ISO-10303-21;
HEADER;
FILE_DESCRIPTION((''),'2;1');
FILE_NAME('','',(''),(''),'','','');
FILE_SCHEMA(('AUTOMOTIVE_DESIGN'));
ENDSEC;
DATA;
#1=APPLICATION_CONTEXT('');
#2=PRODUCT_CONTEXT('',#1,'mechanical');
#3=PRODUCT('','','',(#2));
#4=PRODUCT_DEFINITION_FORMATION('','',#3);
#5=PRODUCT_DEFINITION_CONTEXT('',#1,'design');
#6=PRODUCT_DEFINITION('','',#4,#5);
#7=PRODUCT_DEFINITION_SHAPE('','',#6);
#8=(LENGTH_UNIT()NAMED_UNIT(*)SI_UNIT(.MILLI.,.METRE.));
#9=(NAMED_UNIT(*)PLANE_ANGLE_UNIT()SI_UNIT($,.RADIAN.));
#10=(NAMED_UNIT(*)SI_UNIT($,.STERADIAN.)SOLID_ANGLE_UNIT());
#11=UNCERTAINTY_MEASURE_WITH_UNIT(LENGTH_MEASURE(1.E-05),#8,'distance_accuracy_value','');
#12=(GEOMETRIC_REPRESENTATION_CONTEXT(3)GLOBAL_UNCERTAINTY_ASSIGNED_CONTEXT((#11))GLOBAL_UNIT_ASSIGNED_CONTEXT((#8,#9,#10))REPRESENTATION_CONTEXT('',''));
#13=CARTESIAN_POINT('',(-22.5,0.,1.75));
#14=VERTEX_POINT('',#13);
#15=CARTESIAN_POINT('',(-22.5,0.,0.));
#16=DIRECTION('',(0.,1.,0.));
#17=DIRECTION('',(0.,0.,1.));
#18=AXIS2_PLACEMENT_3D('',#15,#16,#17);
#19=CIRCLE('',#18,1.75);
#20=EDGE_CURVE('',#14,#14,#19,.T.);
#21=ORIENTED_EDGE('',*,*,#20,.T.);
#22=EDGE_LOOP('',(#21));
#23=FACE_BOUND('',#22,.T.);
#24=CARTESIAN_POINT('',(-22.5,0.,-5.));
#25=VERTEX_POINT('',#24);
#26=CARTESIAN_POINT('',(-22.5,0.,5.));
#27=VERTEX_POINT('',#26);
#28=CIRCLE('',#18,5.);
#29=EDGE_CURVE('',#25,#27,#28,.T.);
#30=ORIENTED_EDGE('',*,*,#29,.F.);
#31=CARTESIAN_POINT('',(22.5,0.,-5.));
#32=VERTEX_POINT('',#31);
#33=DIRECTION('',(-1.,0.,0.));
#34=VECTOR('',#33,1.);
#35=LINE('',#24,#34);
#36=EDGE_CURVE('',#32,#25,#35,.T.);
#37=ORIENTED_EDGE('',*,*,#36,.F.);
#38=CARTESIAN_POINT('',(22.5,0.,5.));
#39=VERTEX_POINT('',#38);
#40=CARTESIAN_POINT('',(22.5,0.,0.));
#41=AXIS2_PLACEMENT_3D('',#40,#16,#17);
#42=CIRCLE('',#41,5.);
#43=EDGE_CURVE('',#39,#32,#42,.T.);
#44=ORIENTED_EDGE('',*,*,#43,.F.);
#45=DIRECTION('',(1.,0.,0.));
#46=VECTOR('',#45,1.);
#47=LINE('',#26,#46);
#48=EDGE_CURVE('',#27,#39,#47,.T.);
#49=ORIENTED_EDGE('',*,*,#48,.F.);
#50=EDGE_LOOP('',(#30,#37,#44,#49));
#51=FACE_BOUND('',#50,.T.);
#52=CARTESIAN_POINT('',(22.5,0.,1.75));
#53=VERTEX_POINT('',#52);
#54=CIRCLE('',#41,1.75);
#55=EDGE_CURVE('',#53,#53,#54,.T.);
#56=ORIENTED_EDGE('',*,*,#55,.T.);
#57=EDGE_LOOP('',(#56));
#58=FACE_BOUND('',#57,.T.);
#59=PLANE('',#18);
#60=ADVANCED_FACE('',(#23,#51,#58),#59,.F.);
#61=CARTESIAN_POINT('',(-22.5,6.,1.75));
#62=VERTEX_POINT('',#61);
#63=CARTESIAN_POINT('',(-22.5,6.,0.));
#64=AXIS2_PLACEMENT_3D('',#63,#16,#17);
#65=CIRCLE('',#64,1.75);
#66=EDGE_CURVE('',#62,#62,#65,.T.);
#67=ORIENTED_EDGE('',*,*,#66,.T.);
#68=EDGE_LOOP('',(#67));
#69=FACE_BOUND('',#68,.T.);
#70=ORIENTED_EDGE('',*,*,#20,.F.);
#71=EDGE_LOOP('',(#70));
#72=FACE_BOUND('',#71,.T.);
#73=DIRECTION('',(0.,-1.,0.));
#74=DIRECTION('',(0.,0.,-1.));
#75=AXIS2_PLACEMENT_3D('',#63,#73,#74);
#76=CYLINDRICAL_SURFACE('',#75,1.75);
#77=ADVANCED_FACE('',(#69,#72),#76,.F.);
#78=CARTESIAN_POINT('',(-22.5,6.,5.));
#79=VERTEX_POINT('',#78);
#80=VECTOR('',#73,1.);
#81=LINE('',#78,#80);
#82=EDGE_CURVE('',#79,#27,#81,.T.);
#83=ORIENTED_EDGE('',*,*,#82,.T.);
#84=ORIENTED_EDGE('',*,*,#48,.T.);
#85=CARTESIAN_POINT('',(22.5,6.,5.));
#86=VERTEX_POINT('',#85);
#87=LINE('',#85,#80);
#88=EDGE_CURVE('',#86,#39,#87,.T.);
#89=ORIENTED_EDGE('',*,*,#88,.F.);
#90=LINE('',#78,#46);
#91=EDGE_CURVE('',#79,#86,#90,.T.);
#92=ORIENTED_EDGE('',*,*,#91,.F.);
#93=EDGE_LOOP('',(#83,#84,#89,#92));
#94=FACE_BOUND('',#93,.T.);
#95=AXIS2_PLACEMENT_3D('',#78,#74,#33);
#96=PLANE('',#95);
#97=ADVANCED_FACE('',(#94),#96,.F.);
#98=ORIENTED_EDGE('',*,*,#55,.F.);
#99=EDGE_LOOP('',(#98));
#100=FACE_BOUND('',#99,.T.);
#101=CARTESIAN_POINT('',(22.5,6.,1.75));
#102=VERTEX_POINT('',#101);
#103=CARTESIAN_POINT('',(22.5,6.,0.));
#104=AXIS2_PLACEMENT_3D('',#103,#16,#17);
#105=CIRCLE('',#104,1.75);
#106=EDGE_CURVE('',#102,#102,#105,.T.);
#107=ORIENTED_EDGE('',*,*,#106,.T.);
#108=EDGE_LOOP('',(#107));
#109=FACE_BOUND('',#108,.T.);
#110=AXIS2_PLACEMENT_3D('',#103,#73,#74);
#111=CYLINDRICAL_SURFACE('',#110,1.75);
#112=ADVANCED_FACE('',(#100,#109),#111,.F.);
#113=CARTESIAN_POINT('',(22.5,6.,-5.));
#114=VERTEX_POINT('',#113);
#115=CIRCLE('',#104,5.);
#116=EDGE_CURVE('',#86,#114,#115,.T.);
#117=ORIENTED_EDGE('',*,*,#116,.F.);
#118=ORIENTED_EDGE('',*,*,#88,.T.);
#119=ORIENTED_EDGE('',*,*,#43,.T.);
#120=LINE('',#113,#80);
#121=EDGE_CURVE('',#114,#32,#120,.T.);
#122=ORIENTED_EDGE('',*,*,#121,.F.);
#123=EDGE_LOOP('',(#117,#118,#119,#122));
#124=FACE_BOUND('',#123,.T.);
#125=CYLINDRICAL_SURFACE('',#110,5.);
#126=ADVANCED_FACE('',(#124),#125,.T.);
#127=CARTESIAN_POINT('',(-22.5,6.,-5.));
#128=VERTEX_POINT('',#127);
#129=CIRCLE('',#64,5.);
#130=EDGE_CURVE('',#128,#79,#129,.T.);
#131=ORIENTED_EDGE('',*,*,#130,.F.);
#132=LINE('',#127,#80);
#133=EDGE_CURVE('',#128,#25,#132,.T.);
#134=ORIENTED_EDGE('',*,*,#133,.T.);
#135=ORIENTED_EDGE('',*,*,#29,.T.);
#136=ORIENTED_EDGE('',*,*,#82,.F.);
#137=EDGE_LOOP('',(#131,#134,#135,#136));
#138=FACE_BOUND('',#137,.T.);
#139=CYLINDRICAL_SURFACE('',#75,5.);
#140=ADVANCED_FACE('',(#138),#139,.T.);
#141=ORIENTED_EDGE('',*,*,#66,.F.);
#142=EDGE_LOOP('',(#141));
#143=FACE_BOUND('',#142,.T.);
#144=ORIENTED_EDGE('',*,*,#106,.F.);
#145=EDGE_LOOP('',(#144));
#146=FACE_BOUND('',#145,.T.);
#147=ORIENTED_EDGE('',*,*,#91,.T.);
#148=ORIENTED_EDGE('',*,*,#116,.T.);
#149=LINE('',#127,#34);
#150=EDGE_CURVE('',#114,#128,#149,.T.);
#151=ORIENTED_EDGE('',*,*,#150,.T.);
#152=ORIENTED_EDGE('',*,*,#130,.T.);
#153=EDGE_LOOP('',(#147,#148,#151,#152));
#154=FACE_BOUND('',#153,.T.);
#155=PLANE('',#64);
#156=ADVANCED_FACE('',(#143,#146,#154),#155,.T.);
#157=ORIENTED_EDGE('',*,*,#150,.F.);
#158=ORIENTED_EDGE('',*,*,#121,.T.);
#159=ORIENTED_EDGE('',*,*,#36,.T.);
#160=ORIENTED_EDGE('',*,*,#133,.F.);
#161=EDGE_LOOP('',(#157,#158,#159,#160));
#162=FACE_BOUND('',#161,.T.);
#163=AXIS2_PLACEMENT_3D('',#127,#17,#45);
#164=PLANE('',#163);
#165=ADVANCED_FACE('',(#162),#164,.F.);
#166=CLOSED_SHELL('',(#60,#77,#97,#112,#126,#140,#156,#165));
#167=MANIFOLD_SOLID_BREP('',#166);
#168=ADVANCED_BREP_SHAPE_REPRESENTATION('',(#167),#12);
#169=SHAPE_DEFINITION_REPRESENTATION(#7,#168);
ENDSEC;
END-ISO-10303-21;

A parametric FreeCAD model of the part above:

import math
import FreeCAD as App
import Part
import Sketcher

doc = App.newDocument("Part")
params = doc.addObject("Spreadsheet::Sheet", "Params")
for row, (alias, value) in enumerate([
    ("sketch1_radius", "5 mm"),
    ("sketch1_diameter", "3.5 mm"),
    ("sketch1_width", "45 mm"),
    ("pad1_length", "6 mm"),
], start=1):
    params.set(f"A{row}", alias)
    params.set(f"B{row}", "=" + value)
    params.setAlias(f"B{row}", alias)

body = doc.addObject("PartDesign::Body", "Body")

# Sketch on XZ plane
sketch1 = doc.addObject("Sketcher::SketchObject", "Sketch")
body.addObject(sketch1)
sketch1.AttachmentSupport = (doc.XZ_Plane, [""])
sketch1.MapMode = "FlatFace"
sketch1.addGeometry([
    Part.LineSegment(App.Vector(22.5, -5, 0), App.Vector(-22.5, -5, 0)),  # 0
    Part.ArcOfCircle(Part.Circle(App.Vector(-22.5, 0, 0), App.Vector(0, 0, 1), 5), math.radians(90), math.radians(270)),  # 1
    Part.LineSegment(App.Vector(-22.5, 5, 0), App.Vector(22.5, 5, 0)),  # 2
    Part.ArcOfCircle(Part.Circle(App.Vector(22.5, 0, 0), App.Vector(0, 0, 1), 5), math.radians(-90), math.radians(90)),  # 3
    Part.Circle(App.Vector(22.5, 0, 0), App.Vector(0, 0, 1), 1.8),  # 4
    Part.Circle(App.Vector(-22.5, 0, 0), App.Vector(0, 0, 1), 1.8),  # 5
], False)
sketch1.addConstraint([
    Sketcher.Constraint("Tangent", 0, 2, 1, 2),
    Sketcher.Constraint("Tangent", 1, 1, 2, 1),
    Sketcher.Constraint("Tangent", 2, 2, 3, 2),
    Sketcher.Constraint("Tangent", 3, 1, 0, 1),
    Sketcher.Constraint("Horizontal", 0),
    Sketcher.Constraint("Horizontal", 2),
    Sketcher.Constraint("Coincident", 4, 3, 3, 3),
    Sketcher.Constraint("Coincident", 5, 3, 1, 3),
    Sketcher.Constraint("Equal", 4, 5),
    Sketcher.Constraint("Symmetric", 1, 3, 3, 3, -1, 1),
    Sketcher.Constraint("Radius", 1, 5.0),
    Sketcher.Constraint("Diameter", 4, 3.5),
    Sketcher.Constraint("DistanceX", 0, 2, 0, 1, 45.0),
])
sketch1.setExpression("Constraints[10]", "Params.sketch1_radius")
sketch1.setExpression("Constraints[11]", "Params.sketch1_diameter")
sketch1.setExpression("Constraints[12]", "Params.sketch1_width")
pad1 = doc.addObject("PartDesign::Pad", "Pad")
body.addObject(pad1)
pad1.Profile = sketch1
pad1.setExpression("Length", "Params.pad1_length")
pad1.Reversed = True

doc.recompute()
